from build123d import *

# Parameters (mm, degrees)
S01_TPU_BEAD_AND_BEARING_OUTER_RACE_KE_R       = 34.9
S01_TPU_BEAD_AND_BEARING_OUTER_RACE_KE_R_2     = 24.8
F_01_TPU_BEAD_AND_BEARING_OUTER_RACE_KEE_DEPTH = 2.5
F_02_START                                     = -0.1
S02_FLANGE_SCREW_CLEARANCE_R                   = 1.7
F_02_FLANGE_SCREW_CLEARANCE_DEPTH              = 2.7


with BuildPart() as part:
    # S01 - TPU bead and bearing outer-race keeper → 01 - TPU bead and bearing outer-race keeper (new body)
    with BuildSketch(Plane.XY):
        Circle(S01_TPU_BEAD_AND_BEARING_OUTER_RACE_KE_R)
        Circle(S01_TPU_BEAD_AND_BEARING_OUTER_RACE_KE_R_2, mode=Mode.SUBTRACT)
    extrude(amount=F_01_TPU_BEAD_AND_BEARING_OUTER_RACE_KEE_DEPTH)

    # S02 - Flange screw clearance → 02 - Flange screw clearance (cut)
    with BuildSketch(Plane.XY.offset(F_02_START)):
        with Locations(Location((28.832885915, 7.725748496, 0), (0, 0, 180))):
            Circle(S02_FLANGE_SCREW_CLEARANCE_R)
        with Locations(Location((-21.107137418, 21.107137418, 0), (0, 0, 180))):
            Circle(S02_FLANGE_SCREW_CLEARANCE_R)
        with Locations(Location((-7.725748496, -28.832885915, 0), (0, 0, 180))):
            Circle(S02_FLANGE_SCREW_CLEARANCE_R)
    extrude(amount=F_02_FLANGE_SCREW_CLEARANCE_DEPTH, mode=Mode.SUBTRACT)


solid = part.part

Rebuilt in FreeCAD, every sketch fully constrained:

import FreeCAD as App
import Part
import Sketcher

V = App.Vector
Q = App.Units.Quantity

doc = App.newDocument("Part")
body = doc.addObject("PartDesign::Body", "Body")

sketch1 = doc.addObject("Sketcher::SketchObject", "Sketch")
body.addObject(sketch1)
sketch1.AttachmentSupport = (doc.XY_Plane, [""])
sketch1.MapMode = "FlatFace"
sketch1.addGeometry(Part.Circle(V(0, 0, 0), V(0, 0, 1), 35), False)
sketch1.addGeometry(Part.Circle(V(0, 0, 0), V(0, 0, 1), 25), False)
sketch1.addConstraint(Sketcher.Constraint("Coincident", 0, 3, -1, 1))
sketch1.addConstraint(Sketcher.Constraint("Coincident", 1, 3, -1, 1))
sketch1.addConstraint(Sketcher.Constraint("Diameter", 0, Q("69.8 mm")))
sketch1.addConstraint(Sketcher.Constraint("Diameter", 1, Q("49.6 mm")))
pad1 = doc.addObject("PartDesign::Pad", "Pad")
body.addObject(pad1)
pad1.Profile = sketch1
pad1.Length = 2.5

sketch2 = doc.addObject("Sketcher::SketchObject", "Sketch001")
body.addObject(sketch2)
sketch2.AttachmentSupport = (doc.XY_Plane, [""])
sketch2.MapMode = "FlatFace"
sketch2.AttachmentOffset = App.Placement(V(0, 0, -0.1), App.Rotation())
sketch2.addGeometry(Part.Circle(V(28.8, 7.7, 0), V(0, 0, 1), 1.7), False)
sketch2.addGeometry(Part.Circle(V(-21.1, 21.1, 0), V(0, 0, 1), 1.7), False)
sketch2.addGeometry(Part.Circle(V(-7.7, -28.8, 0), V(0, 0, 1), 1.7), False)
sketch2.addConstraint(Sketcher.Constraint("Equal", 0, 1))
sketch2.addConstraint(Sketcher.Constraint("Equal", 1, 2))
sketch2.addConstraint(Sketcher.Constraint("Diameter", 0, Q("3.4 mm")))
sketch2.addConstraint(Sketcher.Constraint("DistanceY", -1, 1, 0, 3, Q("7.725748 mm")))
sketch2.addConstraint(Sketcher.Constraint("DistanceX", 2, 3, -1, 1, Q("7.725748 mm")))
sketch2.addConstraint(Sketcher.Constraint("DistanceY", 0, 3, 1, 3, Q("13.381389 mm")))
sketch2.addConstraint(Sketcher.Constraint("DistanceX", 1, 3, 2, 3, Q("13.381389 mm")))
sketch2.addConstraint(Sketcher.Constraint("DistanceX", -1, 1, 0, 3, Q("28.832886 mm")))
sketch2.addConstraint(Sketcher.Constraint("DistanceY", 2, 3, -1, 1, Q("28.832886 mm")))
pocket1 = doc.addObject("PartDesign::Pocket", "Pocket")
body.addObject(pocket1)
pocket1.Profile = sketch2
pocket1.Length = 2.7
pocket1.Reversed = True

doc.recompute()
